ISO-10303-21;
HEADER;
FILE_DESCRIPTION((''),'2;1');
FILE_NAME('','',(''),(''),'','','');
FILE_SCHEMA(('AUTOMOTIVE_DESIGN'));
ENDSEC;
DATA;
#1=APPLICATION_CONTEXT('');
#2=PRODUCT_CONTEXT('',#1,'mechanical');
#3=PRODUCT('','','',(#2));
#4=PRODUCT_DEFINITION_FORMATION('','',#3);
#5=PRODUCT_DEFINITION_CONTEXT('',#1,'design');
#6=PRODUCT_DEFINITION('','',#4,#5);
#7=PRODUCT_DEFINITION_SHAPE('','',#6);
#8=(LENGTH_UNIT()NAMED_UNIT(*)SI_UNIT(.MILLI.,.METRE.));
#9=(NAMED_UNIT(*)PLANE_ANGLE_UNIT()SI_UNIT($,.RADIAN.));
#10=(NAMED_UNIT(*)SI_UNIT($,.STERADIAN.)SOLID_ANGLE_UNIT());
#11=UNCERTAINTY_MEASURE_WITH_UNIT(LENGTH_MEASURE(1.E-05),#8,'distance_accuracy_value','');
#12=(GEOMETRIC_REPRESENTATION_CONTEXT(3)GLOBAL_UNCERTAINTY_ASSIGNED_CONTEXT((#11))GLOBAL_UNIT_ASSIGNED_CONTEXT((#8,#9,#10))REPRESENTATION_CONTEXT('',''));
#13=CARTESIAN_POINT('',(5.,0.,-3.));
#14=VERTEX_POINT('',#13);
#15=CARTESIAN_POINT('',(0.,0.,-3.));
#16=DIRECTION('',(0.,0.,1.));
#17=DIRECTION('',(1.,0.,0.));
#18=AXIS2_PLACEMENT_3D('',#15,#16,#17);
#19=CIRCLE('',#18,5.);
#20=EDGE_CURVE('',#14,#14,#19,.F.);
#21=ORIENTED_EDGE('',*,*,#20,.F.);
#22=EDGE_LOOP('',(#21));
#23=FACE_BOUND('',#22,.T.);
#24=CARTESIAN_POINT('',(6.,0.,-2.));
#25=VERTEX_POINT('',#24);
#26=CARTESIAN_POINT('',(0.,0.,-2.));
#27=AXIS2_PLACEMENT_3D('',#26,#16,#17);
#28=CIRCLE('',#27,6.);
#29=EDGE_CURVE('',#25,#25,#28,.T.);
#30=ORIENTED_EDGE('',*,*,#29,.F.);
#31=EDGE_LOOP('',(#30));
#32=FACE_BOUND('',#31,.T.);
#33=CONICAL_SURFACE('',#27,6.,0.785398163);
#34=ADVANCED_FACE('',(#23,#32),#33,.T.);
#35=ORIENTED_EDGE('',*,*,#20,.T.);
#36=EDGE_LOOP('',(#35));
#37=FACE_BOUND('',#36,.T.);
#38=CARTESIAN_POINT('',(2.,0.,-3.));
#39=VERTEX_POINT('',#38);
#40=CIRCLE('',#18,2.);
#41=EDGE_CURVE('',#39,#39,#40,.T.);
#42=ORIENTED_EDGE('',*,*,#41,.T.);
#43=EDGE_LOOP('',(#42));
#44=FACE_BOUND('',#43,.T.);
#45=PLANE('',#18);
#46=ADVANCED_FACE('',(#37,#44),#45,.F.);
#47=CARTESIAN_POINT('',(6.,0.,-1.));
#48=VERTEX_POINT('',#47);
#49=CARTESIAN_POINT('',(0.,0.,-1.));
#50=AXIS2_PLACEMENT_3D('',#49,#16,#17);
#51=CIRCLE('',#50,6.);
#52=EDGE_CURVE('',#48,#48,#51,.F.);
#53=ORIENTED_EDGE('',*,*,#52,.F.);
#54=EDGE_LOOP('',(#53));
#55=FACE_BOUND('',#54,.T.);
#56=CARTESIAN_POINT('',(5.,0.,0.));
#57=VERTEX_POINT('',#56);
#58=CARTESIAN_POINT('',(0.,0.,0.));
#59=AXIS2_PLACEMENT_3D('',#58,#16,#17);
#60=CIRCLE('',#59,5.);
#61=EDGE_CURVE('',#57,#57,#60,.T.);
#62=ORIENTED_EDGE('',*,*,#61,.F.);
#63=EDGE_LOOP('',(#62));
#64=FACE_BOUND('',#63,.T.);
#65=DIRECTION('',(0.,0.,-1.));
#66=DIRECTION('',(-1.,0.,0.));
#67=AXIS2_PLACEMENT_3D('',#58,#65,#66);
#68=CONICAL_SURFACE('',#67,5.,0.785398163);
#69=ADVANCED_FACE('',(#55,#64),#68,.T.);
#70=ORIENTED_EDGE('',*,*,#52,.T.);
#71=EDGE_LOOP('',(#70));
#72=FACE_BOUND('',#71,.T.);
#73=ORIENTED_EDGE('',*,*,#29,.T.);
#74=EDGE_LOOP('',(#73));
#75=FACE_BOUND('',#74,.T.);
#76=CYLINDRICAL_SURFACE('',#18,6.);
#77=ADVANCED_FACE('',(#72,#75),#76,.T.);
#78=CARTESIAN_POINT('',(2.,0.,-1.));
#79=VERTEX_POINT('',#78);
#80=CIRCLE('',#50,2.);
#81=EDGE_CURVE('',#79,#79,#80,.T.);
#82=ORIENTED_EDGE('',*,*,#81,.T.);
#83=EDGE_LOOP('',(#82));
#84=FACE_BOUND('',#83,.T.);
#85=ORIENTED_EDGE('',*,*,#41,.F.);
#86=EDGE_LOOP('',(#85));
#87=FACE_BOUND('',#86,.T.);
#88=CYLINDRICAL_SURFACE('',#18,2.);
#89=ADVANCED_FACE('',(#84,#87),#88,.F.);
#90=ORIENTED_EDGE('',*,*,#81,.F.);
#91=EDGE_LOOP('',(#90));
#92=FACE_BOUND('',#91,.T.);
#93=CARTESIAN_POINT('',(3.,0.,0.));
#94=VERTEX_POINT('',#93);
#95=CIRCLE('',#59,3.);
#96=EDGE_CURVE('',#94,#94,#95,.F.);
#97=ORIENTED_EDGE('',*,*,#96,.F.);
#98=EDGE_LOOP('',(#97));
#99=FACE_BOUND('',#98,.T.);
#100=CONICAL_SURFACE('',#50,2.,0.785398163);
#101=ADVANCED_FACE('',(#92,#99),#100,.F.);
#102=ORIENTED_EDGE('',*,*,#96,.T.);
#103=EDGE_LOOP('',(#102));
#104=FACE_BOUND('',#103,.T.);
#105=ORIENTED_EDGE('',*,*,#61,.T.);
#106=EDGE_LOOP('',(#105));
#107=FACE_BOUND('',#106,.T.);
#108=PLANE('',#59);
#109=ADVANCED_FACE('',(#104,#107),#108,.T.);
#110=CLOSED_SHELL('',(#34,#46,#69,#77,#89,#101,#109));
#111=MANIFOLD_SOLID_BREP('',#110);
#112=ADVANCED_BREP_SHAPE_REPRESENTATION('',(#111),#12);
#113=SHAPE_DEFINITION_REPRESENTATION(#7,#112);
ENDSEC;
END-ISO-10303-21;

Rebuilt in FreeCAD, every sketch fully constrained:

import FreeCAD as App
import Part
import Sketcher
from FreeCAD import Vector
Q = App.Units.Quantity


def edges_at(feature, points):
    """Names of the edges that pass closest to the given points."""
    edges = feature.Shape.Edges
    near = lambda p: min(range(len(edges)), key=lambda i: edges[i].distToShape(Part.Vertex(*p))[0])
    return sorted({f"Edge{near(p) + 1}" for p in points})

doc = App.newDocument("Part")
body = doc.addObject("PartDesign::Body", "Body")

# Sketch on XY plane
sketch1 = doc.addObject("Sketcher::SketchObject", "Sketch")
body.addObject(sketch1)
sketch1.AttachmentSupport = (doc.XY_Plane, [""])
sketch1.MapMode = "FlatFace"
sketch1.addGeometry(Part.Circle(Vector(0, 0, 0), Vector(0, 0, 1), 6), False)
sketch1.addConstraint([
    Sketcher.Constraint("Coincident", 0, 3, -1, 1),
    Sketcher.Constraint("Diameter", 0, Q("12 mm")),
])
pad1 = doc.addObject("PartDesign::Pad", "Pad")
body.addObject(pad1)
pad1.Profile = sketch1
pad1.Length = 3
pad1.Reversed = True
doc.recompute()

chamfer = doc.addObject("PartDesign::Chamfer", "Chamfer")
body.addObject(chamfer)
chamfer.Base = (pad1, edges_at(pad1, [(-6, 0, 0), (-6, 0, -3)]))
chamfer.Size = 1

# Sketch on XY plane
sketch2 = doc.addObject("Sketcher::SketchObject", "Sketch001")
body.addObject(sketch2)
sketch2.AttachmentSupport = (doc.XY_Plane, [""])
sketch2.MapMode = "FlatFace"
sketch2.addGeometry(Part.Circle(Vector(0, 0, 0), Vector(0, 0, 1), 2), False)
sketch2.addConstraint([
    Sketcher.Constraint("Coincident", 0, 3, -1, 1),
    Sketcher.Constraint("Diameter", 0, Q("4 mm")),
])
pocket1 = doc.addObject("PartDesign::Pocket", "Pocket")
body.addObject(pocket1)
pocket1.Profile = sketch2
pocket1.Type = "ThroughAll"
doc.recompute()

chamfer2 = doc.addObject("PartDesign::Chamfer", "Chamfer001")
body.addObject(chamfer2)
chamfer2.Base = (pocket1, edges_at(pocket1, [(-2, 0, 0)]))
chamfer2.Size = 1

doc.recompute()
